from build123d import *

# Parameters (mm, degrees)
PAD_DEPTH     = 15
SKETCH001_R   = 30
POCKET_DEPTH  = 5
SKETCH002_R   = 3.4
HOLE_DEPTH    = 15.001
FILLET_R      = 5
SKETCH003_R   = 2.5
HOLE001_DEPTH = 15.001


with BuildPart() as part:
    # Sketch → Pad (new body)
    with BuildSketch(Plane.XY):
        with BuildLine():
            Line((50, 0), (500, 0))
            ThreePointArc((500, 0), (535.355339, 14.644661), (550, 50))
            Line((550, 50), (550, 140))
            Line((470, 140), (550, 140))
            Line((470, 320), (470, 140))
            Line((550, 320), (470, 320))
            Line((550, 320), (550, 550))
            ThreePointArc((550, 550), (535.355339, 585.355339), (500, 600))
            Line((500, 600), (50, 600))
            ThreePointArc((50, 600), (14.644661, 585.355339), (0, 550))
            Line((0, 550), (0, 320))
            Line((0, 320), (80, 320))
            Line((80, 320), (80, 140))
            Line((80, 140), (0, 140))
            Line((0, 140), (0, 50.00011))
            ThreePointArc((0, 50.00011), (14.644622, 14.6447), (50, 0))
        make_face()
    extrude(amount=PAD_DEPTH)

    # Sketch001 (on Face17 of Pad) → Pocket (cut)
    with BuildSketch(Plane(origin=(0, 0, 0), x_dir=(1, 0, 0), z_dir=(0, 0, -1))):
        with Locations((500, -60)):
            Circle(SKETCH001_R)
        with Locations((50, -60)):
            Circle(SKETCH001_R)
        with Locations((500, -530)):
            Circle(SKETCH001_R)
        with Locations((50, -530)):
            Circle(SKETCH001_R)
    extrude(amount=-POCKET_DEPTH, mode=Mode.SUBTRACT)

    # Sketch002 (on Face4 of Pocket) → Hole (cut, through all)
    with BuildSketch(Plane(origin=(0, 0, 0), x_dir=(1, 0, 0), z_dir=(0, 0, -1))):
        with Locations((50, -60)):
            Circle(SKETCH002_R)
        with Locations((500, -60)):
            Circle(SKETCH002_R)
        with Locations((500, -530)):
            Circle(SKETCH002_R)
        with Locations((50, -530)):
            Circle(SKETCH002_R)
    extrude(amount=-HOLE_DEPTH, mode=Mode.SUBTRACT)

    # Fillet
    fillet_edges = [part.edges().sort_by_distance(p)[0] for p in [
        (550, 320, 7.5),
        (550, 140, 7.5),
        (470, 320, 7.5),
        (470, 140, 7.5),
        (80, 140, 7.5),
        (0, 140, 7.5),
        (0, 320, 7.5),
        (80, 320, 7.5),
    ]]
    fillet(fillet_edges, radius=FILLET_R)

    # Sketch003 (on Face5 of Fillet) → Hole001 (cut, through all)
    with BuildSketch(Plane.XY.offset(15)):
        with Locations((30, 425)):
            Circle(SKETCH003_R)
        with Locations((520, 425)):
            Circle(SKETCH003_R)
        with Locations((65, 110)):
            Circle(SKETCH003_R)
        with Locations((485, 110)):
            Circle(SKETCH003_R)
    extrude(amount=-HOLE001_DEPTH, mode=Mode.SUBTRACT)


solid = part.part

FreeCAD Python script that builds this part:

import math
import FreeCAD as App
import Part
import Sketcher
from FreeCAD import Vector


def edges_at(feature, points):
    """Names of the edges that pass closest to the given points."""
    edges = feature.Shape.Edges
    near = lambda p: min(range(len(edges)), key=lambda i: edges[i].distToShape(Part.Vertex(*p))[0])
    return sorted({f"Edge{near(p) + 1}" for p in points})

doc = App.newDocument("Part")
body = doc.addObject("PartDesign::Body", "Body")

sketch1 = doc.addObject("Sketcher::SketchObject", "Sketch")
body.addObject(sketch1)
sketch1.AttachmentSupport = (doc.XY_Plane, [""])
sketch1.MapMode = "FlatFace"
sketch1.addGeometry([
    Part.LineSegment(Vector(50, 0, 0), Vector(500, 0, 0)),
    Part.ArcOfCircle(Part.Circle(Vector(500, 50, 0), Vector(0, 0, 1), 50), math.radians(-90), math.radians(0)),
    Part.LineSegment(Vector(550, 50, 0), Vector(550, 140, 0)),
    Part.LineSegment(Vector(550, 140, 0), Vector(470, 140, 0)),
    Part.LineSegment(Vector(470, 140, 0), Vector(470, 320, 0)),
    Part.LineSegment(Vector(470, 320, 0), Vector(550, 320, 0)),
    Part.LineSegment(Vector(550, 320, 0), Vector(550, 550, 0)),
    Part.ArcOfCircle(Part.Circle(Vector(500, 550, 0), Vector(0, 0, 1), 50), math.radians(0), math.radians(90)),
    Part.LineSegment(Vector(500, 600, 0), Vector(50, 600, 0)),
    Part.ArcOfCircle(Part.Circle(Vector(50, 550, 0), Vector(0, 0, 1), 50), math.radians(90), math.radians(180)),
    Part.LineSegment(Vector(0, 550, 0), Vector(0, 320, 0)),
    Part.LineSegment(Vector(0, 320, 0), Vector(80, 320, 0)),
    Part.LineSegment(Vector(80, 320, 0), Vector(80, 140, 0)),
    Part.LineSegment(Vector(80, 140, 0), Vector(0, 140, 0)),
    Part.LineSegment(Vector(0, 140, 0), Vector(0, 50.00011, 0)),
    Part.ArcOfCircle(Part.Circle(Vector(50, 50, 0), Vector(0, 0, 1), 50), math.radians(179.999874), math.radians(270)),
], False)
sketch1.addConstraint([
    Sketcher.Constraint("Tangent", 0, 2, 1, 1),
    Sketcher.Constraint("Tangent", 1, 2, 2, 1),
    Sketcher.Constraint("Coincident", 2, 2, 3, 1),
    Sketcher.Constraint("Coincident", 3, 2, 4, 1),
    Sketcher.Constraint("Coincident", 4, 2, 5, 1),
    Sketcher.Constraint("Coincident", 5, 2, 6, 1),
    Sketcher.Constraint("Tangent", 6, 2, 7, 1),
    Sketcher.Constraint("Tangent", 7, 2, 8, 1),
    Sketcher.Constraint("Tangent", 8, 2, 9, 1),
    Sketcher.Constraint("Tangent", 9, 2, 10, 1),
    Sketcher.Constraint("Coincident", 10, 2, 11, 1),
    Sketcher.Constraint("Coincident", 11, 2, 12, 1),
    Sketcher.Constraint("Coincident", 12, 2, 13, 1),
    Sketcher.Constraint("Coincident", 13, 2, 14, 1),
    Sketcher.Constraint("Coincident", 14, 2, 15, 1),
    Sketcher.Constraint("Tangent", 15, 2, 0, 1),
    Sketcher.Constraint("Horizontal", 0),
    Sketcher.Constraint("Vertical", 2),
    Sketcher.Constraint("Horizontal", 3),
    Sketcher.Constraint("Vertical", 4),
    Sketcher.Constraint("Horizontal", 5),
    Sketcher.Constraint("Vertical", 6),
    Sketcher.Constraint("Horizontal", 8),
    Sketcher.Constraint("Vertical", 10),
    Sketcher.Constraint("Horizontal", 11),
    Sketcher.Constraint("Vertical", 12),
    Sketcher.Constraint("Horizontal", 13),
    Sketcher.Constraint("Vertical", 14),
    Sketcher.Constraint("Equal", 1, 7),
    Sketcher.Constraint("Equal", 7, 9),
    Sketcher.Constraint("Equal", 9, 15),
    Sketcher.Constraint("PointOnObject", 0, 2, -1),
    Sketcher.Constraint("PointOnObject", 9, 2, -2),
    Sketcher.Constraint("PointOnObject", 13, 2, -2),
    Sketcher.Constraint("Horizontal", 5, 2, 10, 2),
    Sketcher.Constraint("Horizontal", 3, 2, 12, 2),
    Sketcher.Constraint("Vertical", 1, 3, 7, 3),
    Sketcher.Constraint("Equal", 5, 11),
    Sketcher.Constraint("Radius", 1, 50.0),
    Sketcher.Constraint("DistanceX", 0, 1, 0, 2, 450.0),
    Sketcher.Constraint("DistanceX", 3, 2, 3, 1, 80.0),
    Sketcher.Constraint("DistanceY", 2, 1, 2, 2, 90.0),
    Sketcher.Constraint("DistanceY", 4, 1, 4, 2, 180.0),
    Sketcher.Constraint("DistanceY", 6, 1, 6, 2, 230.0),
    Sketcher.Constraint("DistanceY", 14, 2, 14, 1, 89.99989),
])
pad1 = doc.addObject("PartDesign::Pad", "Pad")
body.addObject(pad1)
pad1.Profile = sketch1
pad1.Length = 15

sketch2 = doc.addObject("Sketcher::SketchObject", "Sketch001")
body.addObject(sketch2)
sketch2.AttachmentSupport = (doc.XY_Plane, [""])
sketch2.MapMode = "FlatFace"
sketch2.addGeometry([
    Part.Circle(Vector(500, 60, 0), Vector(0, 0, 1), 30),
    Part.Circle(Vector(50, 60, 0), Vector(0, 0, 1), 30),
    Part.Circle(Vector(500, 530, 0), Vector(0, 0, 1), 30),
    Part.Circle(Vector(50, 530, 0), Vector(0, 0, 1), 30),
], False)
sketch2.addConstraint([
    Sketcher.Constraint("Equal", 0, 1),
    Sketcher.Constraint("Equal", 1, 2),
    Sketcher.Constraint("Equal", 2, 3),
    Sketcher.Constraint("Horizontal", 0, 3, 1, 3),
    Sketcher.Constraint("Horizontal", 2, 3, 3, 3),
    Sketcher.Constraint("Vertical", 0, 3, 2, 3),
    Sketcher.Constraint("Vertical", 1, 3, 3, 3),
    Sketcher.Constraint("Diameter", 0, 60.0),
    Sketcher.Constraint("DistanceX", -1, 1, 0, 3, 500.0),
    Sketcher.Constraint("DistanceY", -1, 1, 0, 3, 60.0),
    Sketcher.Constraint("DistanceX", -1, 1, 1, 3, 50.0),
    Sketcher.Constraint("DistanceY", -1, 1, 2, 3, 530.0),
])
pocket1 = doc.addObject("PartDesign::Pocket", "Pocket")
body.addObject(pocket1)
pocket1.Profile = sketch2
pocket1.Length = 5
pocket1.Reversed = True

sketch3 = doc.addObject("Sketcher::SketchObject", "Sketch002")
body.addObject(sketch3)
sketch3.AttachmentSupport = (doc.XY_Plane, [""])
sketch3.MapMode = "FlatFace"
sketch3.addGeometry([
    Part.Circle(Vector(50, 60, 0), Vector(0, 0, 1), 3.4),
    Part.Circle(Vector(500, 60, 0), Vector(0, 0, 1), 3.4),
    Part.Circle(Vector(500, 530, 0), Vector(0, 0, 1), 3.4),
    Part.Circle(Vector(50, 530, 0), Vector(0, 0, 1), 3.4),
], False)
sketch3.addConstraint([
    Sketcher.Constraint("Equal", 0, 1),
    Sketcher.Constraint("Equal", 1, 2),
    Sketcher.Constraint("Equal", 2, 3),
    Sketcher.Constraint("Horizontal", 0, 3, 1, 3),
    Sketcher.Constraint("Horizontal", 2, 3, 3, 3),
    Sketcher.Constraint("Vertical", 1, 3, 2, 3),
    Sketcher.Constraint("Vertical", 0, 3, 3, 3),
    Sketcher.Constraint("Diameter", 0, 6.8),
    Sketcher.Constraint("DistanceX", -1, 1, 0, 3, 50.0),
    Sketcher.Constraint("DistanceY", -1, 1, 0, 3, 60.0),
    Sketcher.Constraint("DistanceX", -1, 1, 1, 3, 500.0),
    Sketcher.Constraint("DistanceY", -1, 1, 2, 3, 530.0),
])
pocket2 = doc.addObject("PartDesign::Pocket", "Pocket001")
body.addObject(pocket2)
pocket2.Profile = sketch3
pocket2.Type = "ThroughAll"
pocket2.Reversed = True
doc.recompute()

fillet = doc.addObject("PartDesign::Fillet", "Fillet")
body.addObject(fillet)
fillet.Base = (pocket2, edges_at(pocket2, [
    (550, 320, 7.5),
    (550, 140, 7.5),
    (470, 320, 7.5),
    (470, 140, 7.5),
    (80, 140, 7.5),
    (0, 140, 7.5),
    (0, 320, 7.5),
    (80, 320, 7.5),
]))
fillet.Radius = 5

sketch4 = doc.addObject("Sketcher::SketchObject", "Sketch003")
body.addObject(sketch4)
sketch4.AttachmentSupport = (doc.XY_Plane, [""])
sketch4.MapMode = "FlatFace"
sketch4.AttachmentOffset = App.Placement(Vector(0, 0, 15), App.Rotation())
sketch4.addGeometry([
    Part.Circle(Vector(30, 425, 0), Vector(0, 0, 1), 2.5),
    Part.Circle(Vector(520, 425, 0), Vector(0, 0, 1), 2.5),
    Part.Circle(Vector(65, 110, 0), Vector(0, 0, 1), 2.5),
    Part.Circle(Vector(485, 110, 0), Vector(0, 0, 1), 2.5),
], False)
sketch4.addConstraint([
    Sketcher.Constraint("Equal", 0, 1),
    Sketcher.Constraint("Equal", 1, 2),
    Sketcher.Constraint("Equal", 2, 3),
    Sketcher.Constraint("Horizontal", 0, 3, 1, 3),
    Sketcher.Constraint("Horizontal", 2, 3, 3, 3),
    Sketcher.Constraint("Diameter", 0, 5.0),
    Sketcher.Constraint("DistanceX", -1, 1, 0, 3, 30.0),
    Sketcher.Constraint("DistanceY", -1, 1, 0, 3, 425.0),
    Sketcher.Constraint("DistanceX", -1, 1, 1, 3, 520.0),
    Sketcher.Constraint("DistanceX", -1, 1, 2, 3, 65.0),
    Sketcher.Constraint("DistanceY", -1, 1, 2, 3, 110.0),
    Sketcher.Constraint("DistanceX", -1, 1, 3, 3, 485.0),
])
pocket3 = doc.addObject("PartDesign::Pocket", "Pocket002")
body.addObject(pocket3)
pocket3.Profile = sketch4
pocket3.Type = "ThroughAll"

doc.recompute()
